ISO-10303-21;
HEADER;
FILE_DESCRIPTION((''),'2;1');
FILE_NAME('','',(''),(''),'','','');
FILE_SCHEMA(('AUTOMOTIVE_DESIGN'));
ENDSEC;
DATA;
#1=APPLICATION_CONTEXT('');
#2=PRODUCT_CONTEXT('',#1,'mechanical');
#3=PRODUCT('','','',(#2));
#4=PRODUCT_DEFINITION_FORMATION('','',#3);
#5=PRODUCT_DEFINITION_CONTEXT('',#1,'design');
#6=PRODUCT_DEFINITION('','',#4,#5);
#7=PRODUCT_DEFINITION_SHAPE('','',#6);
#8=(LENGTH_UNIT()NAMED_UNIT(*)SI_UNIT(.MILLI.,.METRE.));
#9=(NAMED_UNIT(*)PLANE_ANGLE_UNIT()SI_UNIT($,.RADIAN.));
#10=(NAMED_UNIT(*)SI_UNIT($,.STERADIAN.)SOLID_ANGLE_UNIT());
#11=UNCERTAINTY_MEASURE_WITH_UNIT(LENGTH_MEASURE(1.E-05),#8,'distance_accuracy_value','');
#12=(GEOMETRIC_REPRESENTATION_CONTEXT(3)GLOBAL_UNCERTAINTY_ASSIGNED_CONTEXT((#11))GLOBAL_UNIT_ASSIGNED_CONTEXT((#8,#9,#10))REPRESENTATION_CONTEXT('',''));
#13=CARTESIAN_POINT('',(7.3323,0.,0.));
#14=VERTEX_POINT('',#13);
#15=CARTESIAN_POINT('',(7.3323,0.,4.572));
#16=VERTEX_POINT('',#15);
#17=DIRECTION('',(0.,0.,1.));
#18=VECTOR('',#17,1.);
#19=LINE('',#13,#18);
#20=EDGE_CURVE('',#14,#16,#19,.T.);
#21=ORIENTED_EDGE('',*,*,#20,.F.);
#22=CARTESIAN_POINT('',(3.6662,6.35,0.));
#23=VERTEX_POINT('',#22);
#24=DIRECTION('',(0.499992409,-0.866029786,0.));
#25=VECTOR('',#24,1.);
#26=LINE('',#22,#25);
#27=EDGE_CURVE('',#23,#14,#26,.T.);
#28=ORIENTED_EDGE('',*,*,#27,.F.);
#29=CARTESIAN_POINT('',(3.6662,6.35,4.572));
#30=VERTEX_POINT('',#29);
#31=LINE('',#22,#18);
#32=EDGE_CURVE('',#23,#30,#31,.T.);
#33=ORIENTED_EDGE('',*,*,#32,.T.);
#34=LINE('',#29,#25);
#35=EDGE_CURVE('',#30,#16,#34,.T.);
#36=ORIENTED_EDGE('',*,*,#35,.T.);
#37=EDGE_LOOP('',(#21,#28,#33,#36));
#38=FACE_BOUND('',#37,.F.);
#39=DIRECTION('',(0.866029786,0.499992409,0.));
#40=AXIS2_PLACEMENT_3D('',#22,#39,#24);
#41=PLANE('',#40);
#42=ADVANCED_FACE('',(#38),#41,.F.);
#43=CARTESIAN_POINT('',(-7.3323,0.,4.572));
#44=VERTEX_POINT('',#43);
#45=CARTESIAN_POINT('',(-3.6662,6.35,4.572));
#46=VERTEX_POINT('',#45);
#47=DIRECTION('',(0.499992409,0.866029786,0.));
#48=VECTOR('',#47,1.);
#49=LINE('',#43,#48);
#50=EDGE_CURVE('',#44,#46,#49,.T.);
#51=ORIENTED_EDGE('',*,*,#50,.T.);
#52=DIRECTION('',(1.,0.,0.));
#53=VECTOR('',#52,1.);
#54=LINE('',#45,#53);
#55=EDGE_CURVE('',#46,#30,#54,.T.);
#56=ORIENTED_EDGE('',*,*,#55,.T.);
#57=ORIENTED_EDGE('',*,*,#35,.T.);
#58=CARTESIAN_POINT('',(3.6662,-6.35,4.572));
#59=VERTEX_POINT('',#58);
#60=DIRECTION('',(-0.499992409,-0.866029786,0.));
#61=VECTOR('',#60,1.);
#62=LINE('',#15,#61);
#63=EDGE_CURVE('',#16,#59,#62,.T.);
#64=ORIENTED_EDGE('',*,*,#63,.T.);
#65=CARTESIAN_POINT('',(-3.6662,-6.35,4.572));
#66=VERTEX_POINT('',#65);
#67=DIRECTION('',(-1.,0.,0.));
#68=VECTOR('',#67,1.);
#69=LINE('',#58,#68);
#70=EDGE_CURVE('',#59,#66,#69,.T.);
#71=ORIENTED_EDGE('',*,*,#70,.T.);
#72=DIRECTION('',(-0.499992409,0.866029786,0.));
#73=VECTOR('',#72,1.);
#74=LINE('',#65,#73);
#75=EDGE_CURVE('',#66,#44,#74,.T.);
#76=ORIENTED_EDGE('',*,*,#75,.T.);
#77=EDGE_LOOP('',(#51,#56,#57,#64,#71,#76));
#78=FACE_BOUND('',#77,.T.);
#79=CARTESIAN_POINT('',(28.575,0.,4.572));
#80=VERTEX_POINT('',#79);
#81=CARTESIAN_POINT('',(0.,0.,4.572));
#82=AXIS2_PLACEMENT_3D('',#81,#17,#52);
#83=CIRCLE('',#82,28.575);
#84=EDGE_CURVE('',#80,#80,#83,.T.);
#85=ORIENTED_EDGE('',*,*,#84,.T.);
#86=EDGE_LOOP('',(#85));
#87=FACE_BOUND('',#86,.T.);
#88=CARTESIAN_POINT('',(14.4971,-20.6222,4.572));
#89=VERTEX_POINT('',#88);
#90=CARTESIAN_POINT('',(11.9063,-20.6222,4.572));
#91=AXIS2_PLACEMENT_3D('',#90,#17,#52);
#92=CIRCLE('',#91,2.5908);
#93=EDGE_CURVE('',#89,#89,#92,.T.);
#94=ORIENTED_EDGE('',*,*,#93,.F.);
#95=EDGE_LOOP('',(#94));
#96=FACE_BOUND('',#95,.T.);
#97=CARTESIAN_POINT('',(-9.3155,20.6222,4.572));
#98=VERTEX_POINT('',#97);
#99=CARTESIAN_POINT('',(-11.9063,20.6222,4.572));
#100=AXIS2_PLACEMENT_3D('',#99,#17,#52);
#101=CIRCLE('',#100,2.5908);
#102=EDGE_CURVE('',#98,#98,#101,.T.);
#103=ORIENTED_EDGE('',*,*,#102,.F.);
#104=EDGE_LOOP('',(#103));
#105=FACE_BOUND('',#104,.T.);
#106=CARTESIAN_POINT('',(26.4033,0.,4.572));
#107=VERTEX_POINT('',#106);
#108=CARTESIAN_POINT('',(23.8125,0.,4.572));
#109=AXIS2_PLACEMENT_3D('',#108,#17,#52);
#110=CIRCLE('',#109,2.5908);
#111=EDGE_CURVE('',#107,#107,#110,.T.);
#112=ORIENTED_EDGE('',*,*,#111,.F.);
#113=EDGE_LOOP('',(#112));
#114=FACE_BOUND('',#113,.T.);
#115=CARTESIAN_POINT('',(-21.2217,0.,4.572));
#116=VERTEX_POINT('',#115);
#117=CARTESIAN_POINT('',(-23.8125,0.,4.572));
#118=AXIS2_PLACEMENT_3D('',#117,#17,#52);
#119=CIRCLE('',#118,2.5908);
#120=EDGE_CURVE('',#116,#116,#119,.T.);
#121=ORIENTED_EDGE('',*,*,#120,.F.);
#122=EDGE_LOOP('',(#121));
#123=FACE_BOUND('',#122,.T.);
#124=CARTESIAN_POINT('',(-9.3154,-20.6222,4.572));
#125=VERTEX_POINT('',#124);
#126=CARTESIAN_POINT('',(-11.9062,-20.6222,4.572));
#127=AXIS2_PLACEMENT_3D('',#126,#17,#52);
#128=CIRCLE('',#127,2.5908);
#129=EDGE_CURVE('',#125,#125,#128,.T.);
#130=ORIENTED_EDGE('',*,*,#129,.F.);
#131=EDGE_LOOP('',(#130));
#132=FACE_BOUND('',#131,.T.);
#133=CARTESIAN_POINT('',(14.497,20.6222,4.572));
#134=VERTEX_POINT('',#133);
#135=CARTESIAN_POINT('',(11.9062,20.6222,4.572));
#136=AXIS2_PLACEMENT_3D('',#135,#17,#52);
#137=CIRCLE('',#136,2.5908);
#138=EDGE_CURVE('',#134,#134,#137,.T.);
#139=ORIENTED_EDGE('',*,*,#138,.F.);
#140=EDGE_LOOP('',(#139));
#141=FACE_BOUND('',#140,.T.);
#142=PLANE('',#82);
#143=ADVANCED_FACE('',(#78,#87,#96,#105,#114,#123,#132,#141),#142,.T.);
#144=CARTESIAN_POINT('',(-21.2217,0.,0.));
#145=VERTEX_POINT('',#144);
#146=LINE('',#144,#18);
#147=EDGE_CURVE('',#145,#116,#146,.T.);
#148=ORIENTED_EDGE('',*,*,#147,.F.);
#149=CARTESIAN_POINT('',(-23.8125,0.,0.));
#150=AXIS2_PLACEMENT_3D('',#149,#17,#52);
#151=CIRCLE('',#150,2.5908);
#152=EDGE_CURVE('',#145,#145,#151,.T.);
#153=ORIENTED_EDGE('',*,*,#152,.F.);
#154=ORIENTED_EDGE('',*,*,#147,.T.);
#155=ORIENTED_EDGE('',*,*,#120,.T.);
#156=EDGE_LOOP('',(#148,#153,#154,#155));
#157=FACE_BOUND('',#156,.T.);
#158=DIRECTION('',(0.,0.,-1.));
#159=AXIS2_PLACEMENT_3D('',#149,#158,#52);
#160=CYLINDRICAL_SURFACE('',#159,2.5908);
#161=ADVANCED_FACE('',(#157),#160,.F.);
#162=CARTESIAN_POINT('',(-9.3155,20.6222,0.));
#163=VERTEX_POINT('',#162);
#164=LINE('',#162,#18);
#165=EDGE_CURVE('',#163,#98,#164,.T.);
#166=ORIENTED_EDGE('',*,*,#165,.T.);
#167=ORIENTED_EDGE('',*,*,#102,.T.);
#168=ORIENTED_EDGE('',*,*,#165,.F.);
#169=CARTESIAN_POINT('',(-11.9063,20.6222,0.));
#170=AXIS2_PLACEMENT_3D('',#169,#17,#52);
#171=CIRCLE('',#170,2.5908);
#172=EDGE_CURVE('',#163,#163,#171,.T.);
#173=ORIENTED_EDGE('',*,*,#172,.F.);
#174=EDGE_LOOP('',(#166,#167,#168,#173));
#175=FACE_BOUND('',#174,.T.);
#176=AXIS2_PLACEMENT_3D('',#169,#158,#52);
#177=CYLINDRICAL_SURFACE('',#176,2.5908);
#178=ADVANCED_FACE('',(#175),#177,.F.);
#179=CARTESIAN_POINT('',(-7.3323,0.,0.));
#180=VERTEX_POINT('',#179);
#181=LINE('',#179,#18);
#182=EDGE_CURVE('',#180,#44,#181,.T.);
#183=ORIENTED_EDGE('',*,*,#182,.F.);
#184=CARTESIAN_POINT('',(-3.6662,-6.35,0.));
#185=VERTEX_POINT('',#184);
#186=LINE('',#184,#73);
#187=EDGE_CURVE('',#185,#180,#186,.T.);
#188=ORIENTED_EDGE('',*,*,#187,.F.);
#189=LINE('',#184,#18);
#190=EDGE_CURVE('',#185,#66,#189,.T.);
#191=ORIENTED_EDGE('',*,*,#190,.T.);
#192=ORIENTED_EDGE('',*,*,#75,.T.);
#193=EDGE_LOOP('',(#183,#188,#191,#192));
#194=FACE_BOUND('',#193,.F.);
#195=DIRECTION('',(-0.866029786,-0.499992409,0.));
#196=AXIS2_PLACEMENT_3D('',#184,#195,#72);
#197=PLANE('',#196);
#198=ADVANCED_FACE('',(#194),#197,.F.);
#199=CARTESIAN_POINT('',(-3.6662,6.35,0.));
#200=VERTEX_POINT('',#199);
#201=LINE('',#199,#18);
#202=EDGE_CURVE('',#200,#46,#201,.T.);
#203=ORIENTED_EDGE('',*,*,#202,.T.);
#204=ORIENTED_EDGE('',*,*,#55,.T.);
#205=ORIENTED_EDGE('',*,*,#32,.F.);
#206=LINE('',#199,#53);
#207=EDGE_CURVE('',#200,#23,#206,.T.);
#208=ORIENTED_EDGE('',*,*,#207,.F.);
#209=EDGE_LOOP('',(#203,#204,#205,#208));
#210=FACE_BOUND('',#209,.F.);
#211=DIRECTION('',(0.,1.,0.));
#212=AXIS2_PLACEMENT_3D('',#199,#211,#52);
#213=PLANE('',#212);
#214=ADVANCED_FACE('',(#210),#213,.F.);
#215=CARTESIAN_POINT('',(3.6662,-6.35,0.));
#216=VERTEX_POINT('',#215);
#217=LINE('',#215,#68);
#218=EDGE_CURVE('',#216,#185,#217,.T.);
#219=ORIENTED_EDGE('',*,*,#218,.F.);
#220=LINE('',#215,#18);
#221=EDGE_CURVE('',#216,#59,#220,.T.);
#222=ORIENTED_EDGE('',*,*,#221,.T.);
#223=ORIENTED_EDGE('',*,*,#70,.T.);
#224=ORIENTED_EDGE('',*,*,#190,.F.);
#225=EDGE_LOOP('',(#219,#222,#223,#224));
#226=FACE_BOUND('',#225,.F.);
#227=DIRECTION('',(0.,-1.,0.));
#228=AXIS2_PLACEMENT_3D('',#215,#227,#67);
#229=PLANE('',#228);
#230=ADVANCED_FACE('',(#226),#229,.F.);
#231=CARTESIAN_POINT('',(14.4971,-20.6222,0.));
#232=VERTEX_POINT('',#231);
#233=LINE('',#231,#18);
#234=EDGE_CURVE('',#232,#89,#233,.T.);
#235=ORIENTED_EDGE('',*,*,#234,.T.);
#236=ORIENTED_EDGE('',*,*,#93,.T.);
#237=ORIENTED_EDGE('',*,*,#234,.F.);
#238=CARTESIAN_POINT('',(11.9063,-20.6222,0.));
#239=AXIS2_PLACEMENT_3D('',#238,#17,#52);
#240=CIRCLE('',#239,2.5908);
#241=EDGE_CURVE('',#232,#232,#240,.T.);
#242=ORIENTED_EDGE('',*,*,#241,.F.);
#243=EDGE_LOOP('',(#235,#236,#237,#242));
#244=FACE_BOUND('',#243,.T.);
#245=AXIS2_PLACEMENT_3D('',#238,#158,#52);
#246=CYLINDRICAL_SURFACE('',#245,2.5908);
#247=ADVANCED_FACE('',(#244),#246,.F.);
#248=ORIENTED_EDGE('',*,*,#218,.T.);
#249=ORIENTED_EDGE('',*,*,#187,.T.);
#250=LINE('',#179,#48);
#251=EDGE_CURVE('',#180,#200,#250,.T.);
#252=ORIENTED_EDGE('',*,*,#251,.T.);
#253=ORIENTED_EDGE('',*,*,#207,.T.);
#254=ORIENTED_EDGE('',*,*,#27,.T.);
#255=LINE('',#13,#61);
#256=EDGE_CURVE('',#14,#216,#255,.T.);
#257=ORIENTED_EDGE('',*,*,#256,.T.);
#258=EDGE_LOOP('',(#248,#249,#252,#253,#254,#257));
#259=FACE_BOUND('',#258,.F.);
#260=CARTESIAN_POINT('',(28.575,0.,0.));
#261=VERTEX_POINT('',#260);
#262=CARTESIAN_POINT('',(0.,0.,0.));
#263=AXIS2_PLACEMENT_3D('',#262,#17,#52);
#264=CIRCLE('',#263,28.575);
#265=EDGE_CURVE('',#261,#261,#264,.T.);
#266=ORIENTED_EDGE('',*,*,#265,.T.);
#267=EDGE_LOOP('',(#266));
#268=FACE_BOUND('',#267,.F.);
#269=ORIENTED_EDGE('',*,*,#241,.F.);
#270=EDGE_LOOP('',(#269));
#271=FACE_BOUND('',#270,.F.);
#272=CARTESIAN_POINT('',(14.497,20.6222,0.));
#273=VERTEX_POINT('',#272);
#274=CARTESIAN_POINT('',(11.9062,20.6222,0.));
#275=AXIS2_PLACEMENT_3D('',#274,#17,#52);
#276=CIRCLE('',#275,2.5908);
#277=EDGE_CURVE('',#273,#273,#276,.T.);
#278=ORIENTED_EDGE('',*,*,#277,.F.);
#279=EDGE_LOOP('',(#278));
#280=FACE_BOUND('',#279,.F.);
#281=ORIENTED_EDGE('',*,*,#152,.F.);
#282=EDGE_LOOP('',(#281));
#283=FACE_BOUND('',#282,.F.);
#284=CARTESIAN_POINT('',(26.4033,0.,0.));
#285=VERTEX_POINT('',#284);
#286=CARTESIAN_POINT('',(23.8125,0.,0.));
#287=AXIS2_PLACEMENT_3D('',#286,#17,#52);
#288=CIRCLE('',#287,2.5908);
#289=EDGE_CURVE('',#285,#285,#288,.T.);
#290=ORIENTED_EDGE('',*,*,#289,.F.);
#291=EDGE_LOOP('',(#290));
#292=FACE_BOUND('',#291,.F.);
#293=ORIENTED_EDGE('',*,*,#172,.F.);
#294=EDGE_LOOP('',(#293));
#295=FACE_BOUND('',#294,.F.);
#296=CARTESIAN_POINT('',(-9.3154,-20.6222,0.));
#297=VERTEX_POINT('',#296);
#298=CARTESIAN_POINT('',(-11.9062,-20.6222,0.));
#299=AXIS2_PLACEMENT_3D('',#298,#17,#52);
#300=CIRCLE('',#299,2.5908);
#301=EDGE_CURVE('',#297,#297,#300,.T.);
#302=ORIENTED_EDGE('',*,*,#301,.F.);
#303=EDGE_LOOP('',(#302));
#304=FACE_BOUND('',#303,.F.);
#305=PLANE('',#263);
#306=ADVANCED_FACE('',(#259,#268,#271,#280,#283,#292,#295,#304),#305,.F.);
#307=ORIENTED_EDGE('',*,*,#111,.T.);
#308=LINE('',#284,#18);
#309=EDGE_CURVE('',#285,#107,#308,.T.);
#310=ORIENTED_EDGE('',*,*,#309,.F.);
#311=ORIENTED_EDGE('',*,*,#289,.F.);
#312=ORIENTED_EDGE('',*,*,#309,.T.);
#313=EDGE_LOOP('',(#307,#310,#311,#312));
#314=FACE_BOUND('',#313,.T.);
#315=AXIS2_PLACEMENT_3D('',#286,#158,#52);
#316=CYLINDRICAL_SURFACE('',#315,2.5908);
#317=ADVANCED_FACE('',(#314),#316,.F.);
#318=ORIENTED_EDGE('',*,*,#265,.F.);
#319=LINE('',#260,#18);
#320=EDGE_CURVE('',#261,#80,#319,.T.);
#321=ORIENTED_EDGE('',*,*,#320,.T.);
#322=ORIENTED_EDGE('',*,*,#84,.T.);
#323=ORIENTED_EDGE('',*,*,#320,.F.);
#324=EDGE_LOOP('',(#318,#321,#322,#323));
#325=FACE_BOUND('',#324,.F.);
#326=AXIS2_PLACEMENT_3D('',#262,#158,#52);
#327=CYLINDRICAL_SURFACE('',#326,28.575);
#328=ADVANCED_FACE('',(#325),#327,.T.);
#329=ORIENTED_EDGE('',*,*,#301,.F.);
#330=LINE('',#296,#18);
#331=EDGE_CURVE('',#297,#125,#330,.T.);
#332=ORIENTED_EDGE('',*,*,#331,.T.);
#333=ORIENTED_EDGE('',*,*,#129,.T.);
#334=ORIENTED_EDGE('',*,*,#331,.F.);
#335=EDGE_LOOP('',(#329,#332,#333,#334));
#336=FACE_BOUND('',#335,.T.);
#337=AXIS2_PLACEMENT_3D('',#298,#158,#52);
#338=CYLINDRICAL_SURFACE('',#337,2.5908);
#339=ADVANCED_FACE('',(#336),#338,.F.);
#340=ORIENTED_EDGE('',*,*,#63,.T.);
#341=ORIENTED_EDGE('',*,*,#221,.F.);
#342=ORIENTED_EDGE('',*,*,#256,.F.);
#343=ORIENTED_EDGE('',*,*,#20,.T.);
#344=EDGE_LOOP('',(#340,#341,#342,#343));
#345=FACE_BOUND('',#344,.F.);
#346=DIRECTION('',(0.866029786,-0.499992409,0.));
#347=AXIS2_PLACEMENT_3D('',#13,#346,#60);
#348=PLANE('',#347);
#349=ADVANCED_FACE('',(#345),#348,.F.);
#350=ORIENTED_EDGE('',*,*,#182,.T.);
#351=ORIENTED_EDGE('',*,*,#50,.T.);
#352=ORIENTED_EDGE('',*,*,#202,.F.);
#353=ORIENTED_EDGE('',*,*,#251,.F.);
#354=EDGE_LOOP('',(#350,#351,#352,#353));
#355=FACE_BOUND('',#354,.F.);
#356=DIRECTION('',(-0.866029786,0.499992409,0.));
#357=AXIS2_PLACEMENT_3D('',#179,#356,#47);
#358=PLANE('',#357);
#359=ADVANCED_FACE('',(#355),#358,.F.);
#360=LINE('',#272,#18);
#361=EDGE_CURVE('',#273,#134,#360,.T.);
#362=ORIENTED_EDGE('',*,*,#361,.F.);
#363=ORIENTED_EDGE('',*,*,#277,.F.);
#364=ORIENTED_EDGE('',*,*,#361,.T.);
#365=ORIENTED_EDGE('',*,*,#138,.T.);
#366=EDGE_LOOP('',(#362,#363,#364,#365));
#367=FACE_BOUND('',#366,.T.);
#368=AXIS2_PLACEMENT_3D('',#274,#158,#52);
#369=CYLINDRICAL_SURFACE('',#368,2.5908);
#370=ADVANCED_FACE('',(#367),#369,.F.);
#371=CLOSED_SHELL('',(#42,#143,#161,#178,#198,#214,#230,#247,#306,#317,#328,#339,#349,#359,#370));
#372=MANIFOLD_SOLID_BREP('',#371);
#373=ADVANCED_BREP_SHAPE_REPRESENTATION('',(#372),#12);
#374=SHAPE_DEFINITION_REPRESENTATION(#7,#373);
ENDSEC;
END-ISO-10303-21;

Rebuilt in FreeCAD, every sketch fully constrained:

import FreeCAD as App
import Part
import Sketcher
Q = App.Units.Quantity

doc = App.newDocument("Part")
body = doc.addObject("PartDesign::Body", "Body")

# Sketch on XY plane
sketch1 = body.newObject("Sketcher::SketchObject", "Sketch")
sketch1.AttachmentSupport = (doc.getObject("XY_Plane"), [""])
sketch1.MapMode = "FlatFace"
sketch1.addGeometry(Part.Circle(App.Vector(0, 0, 0), App.Vector(0, 0, 1), 28.6), False)
sketch1.addGeometry(Part.Circle(App.Vector(-11.9, -20.6, 0), App.Vector(0, 0, 1), 2.6), False)
sketch1.addGeometry(Part.Circle(App.Vector(11.9, -20.6, 0), App.Vector(0, 0, 1), 2.6), False)
sketch1.addGeometry(Part.Circle(App.Vector(-23.8, 0, 0), App.Vector(0, 0, 1), 2.6), False)
sketch1.addGeometry(Part.Circle(App.Vector(-11.9, 20.6, 0), App.Vector(0, 0, 1), 2.6), False)
sketch1.addGeometry(Part.LineSegment(App.Vector(3.7, 6.3, 0), App.Vector(7.3, 0, 0)), False)
sketch1.addGeometry(Part.LineSegment(App.Vector(7.3, 0, 0), App.Vector(3.7, -6.3, 0)), False)
sketch1.addGeometry(Part.LineSegment(App.Vector(3.7, -6.3, 0), App.Vector(-3.7, -6.3, 0)), False)
sketch1.addGeometry(Part.LineSegment(App.Vector(-3.7, -6.3, 0), App.Vector(-7.3, 0, 0)), False)
sketch1.addGeometry(Part.LineSegment(App.Vector(-7.3, 0, 0), App.Vector(-3.7, 6.3, 0)), False)
sketch1.addGeometry(Part.LineSegment(App.Vector(-3.7, 6.3, 0), App.Vector(3.7, 6.3, 0)), False)
sketch1.addGeometry(Part.Circle(App.Vector(23.8, 0, 0), App.Vector(0, 0, 1), 2.6), False)
sketch1.addGeometry(Part.Circle(App.Vector(11.9, 20.6, 0), App.Vector(0, 0, 1), 2.6), False)
sketch1.addConstraint(Sketcher.Constraint("Coincident", 5, 2, 6, 1))
sketch1.addConstraint(Sketcher.Constraint("Coincident", 6, 2, 7, 1))
sketch1.addConstraint(Sketcher.Constraint("Coincident", 7, 2, 8, 1))
sketch1.addConstraint(Sketcher.Constraint("Coincident", 8, 2, 9, 1))
sketch1.addConstraint(Sketcher.Constraint("Coincident", 9, 2, 10, 1))
sketch1.addConstraint(Sketcher.Constraint("Coincident", 10, 2, 5, 1))
sketch1.addConstraint(Sketcher.Constraint("Horizontal", 7))
sketch1.addConstraint(Sketcher.Constraint("Horizontal", 10))
sketch1.addConstraint(Sketcher.Constraint("Coincident", 0, 3, -1, 1))
sketch1.addConstraint(Sketcher.Constraint("Equal", 1, 2))
sketch1.addConstraint(Sketcher.Constraint("Equal", 2, 3))
sketch1.addConstraint(Sketcher.Constraint("Equal", 3, 4))
sketch1.addConstraint(Sketcher.Constraint("Equal", 4, 11))
sketch1.addConstraint(Sketcher.Constraint("Equal", 11, 12))
sketch1.addConstraint(Sketcher.Constraint("Symmetric", 2, 3, 4, 3, -1, 1))
sketch1.addConstraint(Sketcher.Constraint("Symmetric", 3, 3, 11, 3, -1, 1))
sketch1.addConstraint(Sketcher.Constraint("Symmetric", 1, 3, 12, 3, -1, 1))
sketch1.addConstraint(Sketcher.Constraint("Symmetric", 5, 2, 8, 2, -1, 1))
sketch1.addConstraint(Sketcher.Constraint("Symmetric", 6, 2, 9, 2, -1, 1))
sketch1.addConstraint(Sketcher.Constraint("Symmetric", 1, 3, 2, 3, -2))
sketch1.addConstraint(Sketcher.Constraint("PointOnObject", 3, 3, -1))
sketch1.addConstraint(Sketcher.Constraint("PointOnObject", 5, 2, -1))
sketch1.addConstraint(Sketcher.Constraint("Parallel", 5, 8))
sketch1.addConstraint(Sketcher.Constraint("Vertical", 7, 2, 9, 2))
sketch1.addConstraint(Sketcher.Constraint("Diameter", 0, Q("2.25 in")))
sketch1.addConstraint(Sketcher.Constraint("Diameter", 1, Q("0.204 in")))
sketch1.addConstraint(Sketcher.Constraint("DistanceY", 7, 2, 9, 2, Q("0.5 in")))
sketch1.addConstraint(Sketcher.Constraint("DistanceX", 3, 3, -1, 1, Q("0.9375 in")))
sketch1.addConstraint(Sketcher.Constraint("Angle", 5, Q("-60.0005 deg")))
sketch1.addConstraint(Sketcher.Constraint("DistanceX", 1, 3, 2, 3, Q("0.9375 in")))
sketch1.addConstraint(Sketcher.Constraint("DistanceX", 7, 2, 5, 2, Q("0.433 in")))
sketch1.addConstraint(Sketcher.Constraint("DistanceY", 1, 3, -1, 1, Q("0.8119 in")))
pad1 = body.newObject("PartDesign::Pad", "Pad")
pad1.Profile = sketch1
pad1.Length = Q("0.18 in")

doc.recompute()
